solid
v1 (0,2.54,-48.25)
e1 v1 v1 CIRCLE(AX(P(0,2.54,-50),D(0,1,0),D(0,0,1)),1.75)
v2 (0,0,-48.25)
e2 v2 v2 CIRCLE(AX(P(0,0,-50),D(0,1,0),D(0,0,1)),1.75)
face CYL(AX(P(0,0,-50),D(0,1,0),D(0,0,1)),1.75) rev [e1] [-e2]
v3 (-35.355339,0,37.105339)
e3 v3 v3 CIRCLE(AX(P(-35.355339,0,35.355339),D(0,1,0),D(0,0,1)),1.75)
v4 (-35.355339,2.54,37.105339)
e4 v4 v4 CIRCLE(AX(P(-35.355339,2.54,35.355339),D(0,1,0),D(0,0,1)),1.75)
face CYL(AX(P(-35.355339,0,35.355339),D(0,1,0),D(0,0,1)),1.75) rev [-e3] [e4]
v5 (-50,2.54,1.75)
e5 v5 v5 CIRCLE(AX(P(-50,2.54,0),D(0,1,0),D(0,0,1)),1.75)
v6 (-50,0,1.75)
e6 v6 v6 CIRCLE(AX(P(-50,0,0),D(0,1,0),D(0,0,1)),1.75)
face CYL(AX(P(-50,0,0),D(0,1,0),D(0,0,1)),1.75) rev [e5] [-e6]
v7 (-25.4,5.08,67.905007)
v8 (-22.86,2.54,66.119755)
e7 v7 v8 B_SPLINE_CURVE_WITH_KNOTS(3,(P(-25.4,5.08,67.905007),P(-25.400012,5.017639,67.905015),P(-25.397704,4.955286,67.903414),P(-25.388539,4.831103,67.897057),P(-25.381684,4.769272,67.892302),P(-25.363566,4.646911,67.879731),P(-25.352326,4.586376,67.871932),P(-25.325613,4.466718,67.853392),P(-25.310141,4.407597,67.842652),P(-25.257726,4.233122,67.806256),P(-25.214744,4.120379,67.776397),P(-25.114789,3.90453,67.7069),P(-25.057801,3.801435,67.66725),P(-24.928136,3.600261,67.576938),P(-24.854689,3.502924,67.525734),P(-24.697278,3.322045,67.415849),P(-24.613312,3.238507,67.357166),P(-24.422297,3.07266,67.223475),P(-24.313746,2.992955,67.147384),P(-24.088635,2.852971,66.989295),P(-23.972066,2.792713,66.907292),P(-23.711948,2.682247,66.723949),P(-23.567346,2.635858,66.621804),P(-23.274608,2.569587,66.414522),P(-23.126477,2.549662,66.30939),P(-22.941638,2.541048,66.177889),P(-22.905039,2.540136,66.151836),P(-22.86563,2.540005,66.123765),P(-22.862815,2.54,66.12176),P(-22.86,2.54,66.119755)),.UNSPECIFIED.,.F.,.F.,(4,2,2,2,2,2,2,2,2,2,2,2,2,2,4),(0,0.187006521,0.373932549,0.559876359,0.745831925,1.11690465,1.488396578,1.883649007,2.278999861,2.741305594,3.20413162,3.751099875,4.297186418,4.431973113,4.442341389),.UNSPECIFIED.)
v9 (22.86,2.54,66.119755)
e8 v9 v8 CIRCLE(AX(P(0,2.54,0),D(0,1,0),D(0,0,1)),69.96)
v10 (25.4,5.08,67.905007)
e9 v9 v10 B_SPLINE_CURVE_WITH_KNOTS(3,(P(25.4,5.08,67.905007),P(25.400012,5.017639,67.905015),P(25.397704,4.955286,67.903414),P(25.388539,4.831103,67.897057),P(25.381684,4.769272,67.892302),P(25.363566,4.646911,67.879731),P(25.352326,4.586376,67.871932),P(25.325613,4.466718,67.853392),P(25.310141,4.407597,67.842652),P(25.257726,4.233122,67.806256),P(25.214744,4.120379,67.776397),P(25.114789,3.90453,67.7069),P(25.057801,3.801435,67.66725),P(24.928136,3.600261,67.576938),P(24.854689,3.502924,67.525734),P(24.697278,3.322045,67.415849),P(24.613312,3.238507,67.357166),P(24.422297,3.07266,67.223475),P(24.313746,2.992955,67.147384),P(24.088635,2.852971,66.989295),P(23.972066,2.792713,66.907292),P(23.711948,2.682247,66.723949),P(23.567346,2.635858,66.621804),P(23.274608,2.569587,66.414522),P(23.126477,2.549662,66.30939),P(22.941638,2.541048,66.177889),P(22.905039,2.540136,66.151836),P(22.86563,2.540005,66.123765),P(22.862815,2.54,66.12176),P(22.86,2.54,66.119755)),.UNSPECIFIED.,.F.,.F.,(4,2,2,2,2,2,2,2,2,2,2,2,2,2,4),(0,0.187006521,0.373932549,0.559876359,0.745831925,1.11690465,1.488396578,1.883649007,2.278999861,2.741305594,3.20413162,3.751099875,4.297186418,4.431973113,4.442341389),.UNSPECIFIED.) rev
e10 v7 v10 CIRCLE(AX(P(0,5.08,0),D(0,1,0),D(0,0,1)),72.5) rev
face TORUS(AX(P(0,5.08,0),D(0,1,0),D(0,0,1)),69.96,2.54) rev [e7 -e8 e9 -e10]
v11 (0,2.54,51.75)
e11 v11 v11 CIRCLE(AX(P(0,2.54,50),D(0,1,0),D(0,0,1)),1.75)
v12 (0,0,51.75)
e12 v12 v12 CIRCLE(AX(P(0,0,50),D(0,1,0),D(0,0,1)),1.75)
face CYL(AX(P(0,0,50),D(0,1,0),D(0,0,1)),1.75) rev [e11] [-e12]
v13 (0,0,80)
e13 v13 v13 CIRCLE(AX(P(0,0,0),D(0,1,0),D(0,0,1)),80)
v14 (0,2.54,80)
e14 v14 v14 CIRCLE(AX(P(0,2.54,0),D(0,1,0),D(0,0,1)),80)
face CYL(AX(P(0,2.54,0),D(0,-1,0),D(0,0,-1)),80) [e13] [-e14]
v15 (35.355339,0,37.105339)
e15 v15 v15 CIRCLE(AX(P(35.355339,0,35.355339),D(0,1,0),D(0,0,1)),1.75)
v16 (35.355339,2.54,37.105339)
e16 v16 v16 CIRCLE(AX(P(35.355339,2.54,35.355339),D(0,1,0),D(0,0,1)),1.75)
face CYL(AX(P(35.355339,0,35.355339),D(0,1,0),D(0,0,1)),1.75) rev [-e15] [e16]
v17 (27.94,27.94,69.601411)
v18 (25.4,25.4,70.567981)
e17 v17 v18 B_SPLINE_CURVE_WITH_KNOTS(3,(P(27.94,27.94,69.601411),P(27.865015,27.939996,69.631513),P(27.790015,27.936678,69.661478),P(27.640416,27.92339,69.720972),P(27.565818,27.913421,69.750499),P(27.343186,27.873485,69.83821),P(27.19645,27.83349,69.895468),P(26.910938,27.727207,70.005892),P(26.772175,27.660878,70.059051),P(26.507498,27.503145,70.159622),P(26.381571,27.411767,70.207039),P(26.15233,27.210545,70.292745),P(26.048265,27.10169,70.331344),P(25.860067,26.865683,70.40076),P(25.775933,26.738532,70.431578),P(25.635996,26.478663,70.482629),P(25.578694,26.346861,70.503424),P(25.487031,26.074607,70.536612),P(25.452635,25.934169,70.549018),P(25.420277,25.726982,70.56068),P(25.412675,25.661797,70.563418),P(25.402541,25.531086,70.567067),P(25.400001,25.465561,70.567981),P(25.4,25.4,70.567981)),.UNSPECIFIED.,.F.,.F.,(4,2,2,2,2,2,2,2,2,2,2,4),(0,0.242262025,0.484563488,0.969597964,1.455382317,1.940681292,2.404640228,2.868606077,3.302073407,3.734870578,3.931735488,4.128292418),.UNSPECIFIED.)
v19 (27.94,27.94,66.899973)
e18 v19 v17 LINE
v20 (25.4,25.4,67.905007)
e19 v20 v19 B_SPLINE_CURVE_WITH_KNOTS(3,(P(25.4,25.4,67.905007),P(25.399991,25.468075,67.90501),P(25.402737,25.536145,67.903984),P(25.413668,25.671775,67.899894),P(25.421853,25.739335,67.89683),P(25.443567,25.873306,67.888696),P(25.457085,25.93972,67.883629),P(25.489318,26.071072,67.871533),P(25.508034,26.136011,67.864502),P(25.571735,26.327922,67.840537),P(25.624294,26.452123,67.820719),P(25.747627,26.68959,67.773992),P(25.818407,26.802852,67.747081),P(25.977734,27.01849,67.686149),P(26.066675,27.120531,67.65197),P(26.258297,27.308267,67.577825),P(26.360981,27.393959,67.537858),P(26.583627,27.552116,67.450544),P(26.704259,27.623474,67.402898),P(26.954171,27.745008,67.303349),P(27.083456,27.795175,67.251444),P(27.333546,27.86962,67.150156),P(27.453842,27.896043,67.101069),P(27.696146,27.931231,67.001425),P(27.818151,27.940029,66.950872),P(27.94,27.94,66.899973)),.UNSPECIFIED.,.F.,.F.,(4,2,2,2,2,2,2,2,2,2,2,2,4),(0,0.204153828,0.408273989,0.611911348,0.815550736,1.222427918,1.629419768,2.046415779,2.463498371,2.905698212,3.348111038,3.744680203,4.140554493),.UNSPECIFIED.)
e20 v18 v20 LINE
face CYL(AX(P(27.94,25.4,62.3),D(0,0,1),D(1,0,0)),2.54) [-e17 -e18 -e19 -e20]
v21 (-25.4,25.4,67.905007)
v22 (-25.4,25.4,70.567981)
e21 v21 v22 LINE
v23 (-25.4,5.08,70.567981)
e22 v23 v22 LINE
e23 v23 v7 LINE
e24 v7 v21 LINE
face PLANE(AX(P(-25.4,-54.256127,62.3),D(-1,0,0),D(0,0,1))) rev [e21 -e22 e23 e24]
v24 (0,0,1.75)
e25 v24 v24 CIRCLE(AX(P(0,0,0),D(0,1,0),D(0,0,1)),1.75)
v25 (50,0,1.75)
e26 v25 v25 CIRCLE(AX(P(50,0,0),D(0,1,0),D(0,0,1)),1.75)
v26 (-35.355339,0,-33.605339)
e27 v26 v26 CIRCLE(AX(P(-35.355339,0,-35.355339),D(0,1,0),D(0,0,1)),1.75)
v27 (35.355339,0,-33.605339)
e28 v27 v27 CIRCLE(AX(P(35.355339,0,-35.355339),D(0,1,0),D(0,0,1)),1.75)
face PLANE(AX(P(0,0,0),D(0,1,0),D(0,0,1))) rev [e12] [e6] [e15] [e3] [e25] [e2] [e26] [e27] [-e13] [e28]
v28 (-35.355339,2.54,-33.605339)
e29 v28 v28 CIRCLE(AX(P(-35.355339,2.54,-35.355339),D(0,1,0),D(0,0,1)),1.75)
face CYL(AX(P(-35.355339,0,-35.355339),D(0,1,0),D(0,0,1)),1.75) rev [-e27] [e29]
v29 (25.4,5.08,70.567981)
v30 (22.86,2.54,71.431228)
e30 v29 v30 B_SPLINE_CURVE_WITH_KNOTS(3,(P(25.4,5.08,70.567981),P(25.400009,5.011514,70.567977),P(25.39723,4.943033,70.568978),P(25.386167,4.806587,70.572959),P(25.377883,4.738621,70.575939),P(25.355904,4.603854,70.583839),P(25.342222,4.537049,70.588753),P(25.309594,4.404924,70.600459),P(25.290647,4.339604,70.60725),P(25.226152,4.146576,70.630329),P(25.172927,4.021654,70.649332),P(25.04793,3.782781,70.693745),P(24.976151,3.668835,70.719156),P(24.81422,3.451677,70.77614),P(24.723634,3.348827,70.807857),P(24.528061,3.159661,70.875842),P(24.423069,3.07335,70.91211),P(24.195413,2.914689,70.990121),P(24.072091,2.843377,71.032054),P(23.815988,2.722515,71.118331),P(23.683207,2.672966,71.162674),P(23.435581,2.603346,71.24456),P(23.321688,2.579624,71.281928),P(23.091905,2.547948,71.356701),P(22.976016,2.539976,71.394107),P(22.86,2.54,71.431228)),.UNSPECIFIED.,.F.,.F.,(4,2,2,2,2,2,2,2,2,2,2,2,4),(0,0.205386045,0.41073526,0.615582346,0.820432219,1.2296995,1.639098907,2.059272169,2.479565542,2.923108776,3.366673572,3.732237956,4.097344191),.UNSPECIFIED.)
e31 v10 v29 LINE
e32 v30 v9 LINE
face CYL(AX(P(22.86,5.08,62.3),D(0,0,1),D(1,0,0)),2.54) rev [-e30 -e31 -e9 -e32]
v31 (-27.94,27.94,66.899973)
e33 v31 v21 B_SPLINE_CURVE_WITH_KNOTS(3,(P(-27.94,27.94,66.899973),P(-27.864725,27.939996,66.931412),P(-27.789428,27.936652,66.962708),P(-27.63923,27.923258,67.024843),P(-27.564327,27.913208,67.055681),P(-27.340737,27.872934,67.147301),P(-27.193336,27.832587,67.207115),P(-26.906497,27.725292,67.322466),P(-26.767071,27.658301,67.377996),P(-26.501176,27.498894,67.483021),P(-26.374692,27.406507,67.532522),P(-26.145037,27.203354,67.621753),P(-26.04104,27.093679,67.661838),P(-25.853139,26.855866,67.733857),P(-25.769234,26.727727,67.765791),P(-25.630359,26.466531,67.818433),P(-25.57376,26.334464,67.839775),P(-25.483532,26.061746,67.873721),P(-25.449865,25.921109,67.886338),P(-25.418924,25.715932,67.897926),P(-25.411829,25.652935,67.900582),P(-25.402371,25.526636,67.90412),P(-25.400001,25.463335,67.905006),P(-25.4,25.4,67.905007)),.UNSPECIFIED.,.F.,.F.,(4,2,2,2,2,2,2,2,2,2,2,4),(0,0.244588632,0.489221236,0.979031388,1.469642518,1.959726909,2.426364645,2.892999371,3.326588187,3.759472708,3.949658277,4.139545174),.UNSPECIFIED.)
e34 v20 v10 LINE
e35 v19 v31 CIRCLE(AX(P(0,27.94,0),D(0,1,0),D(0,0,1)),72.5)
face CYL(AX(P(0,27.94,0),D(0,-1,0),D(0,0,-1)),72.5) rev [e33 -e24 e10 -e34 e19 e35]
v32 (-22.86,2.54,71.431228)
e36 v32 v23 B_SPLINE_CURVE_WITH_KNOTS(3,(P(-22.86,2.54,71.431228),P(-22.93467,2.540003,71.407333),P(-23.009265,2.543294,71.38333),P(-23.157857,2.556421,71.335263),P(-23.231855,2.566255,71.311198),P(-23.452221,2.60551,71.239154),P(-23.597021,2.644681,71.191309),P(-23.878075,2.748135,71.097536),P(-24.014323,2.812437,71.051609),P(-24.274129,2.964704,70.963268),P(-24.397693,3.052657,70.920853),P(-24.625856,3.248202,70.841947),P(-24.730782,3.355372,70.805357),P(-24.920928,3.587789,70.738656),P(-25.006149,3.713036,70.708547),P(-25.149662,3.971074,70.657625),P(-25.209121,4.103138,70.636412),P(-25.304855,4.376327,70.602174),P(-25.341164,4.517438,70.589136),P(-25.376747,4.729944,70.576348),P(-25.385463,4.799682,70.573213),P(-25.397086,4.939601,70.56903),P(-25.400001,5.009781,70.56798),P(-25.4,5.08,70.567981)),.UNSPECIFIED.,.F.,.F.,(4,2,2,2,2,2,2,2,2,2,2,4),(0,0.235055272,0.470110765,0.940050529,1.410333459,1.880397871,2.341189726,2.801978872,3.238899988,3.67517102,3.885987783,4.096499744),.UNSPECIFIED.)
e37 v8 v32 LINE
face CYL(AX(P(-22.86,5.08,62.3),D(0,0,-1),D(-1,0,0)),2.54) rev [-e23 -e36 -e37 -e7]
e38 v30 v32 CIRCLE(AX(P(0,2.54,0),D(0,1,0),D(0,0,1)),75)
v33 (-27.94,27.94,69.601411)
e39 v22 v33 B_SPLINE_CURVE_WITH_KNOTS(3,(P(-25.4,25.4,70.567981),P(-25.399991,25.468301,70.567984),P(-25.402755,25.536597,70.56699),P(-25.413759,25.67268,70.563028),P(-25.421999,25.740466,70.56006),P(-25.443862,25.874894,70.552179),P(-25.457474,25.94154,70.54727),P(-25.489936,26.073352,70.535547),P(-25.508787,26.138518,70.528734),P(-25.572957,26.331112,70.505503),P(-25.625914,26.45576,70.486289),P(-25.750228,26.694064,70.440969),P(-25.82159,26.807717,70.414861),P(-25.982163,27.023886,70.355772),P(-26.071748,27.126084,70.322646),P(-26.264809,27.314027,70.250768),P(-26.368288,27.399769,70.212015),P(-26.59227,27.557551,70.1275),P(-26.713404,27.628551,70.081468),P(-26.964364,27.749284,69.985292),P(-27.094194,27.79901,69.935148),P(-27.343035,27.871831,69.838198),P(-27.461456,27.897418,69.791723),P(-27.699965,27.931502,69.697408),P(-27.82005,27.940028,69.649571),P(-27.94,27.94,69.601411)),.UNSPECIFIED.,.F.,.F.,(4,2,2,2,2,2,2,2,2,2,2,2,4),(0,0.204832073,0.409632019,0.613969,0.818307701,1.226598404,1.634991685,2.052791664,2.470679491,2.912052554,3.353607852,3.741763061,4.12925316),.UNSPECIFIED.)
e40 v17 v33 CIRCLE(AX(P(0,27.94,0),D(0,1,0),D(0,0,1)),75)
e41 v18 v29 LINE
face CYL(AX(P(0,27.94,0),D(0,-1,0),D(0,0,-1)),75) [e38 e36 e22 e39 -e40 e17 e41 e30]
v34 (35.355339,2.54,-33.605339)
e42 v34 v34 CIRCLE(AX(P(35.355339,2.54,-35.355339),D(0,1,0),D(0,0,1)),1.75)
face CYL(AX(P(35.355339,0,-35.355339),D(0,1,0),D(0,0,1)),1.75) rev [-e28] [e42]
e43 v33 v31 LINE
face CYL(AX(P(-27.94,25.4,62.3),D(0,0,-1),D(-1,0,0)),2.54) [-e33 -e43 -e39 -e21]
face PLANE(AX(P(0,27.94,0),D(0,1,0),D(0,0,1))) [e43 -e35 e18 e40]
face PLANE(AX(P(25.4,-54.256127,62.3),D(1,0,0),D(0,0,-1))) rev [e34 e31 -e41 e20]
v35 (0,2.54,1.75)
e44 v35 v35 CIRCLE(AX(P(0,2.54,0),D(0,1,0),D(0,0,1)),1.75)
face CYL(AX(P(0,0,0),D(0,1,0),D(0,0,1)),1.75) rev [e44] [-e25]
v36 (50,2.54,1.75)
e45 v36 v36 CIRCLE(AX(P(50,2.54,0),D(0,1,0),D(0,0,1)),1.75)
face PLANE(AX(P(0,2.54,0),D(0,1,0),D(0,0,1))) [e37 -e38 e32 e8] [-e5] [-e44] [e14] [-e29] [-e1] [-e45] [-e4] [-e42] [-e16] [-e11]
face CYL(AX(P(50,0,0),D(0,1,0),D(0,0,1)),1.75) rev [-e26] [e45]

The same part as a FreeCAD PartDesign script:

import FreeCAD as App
import Part
import Sketcher
from FreeCAD import Vector


def edges_at(feature, points):
    """Names of the edges that pass closest to the given points."""
    edges = feature.Shape.Edges
    near = lambda p: min(range(len(edges)), key=lambda i: edges[i].distToShape(Part.Vertex(*p))[0])
    return sorted({f"Edge{near(p) + 1}" for p in points})

doc = App.newDocument("Part")
body = doc.addObject("PartDesign::Body", "Body")

sketch1 = body.newObject("Sketcher::SketchObject", "Sketch")
sketch1.AttachmentSupport = (doc.getObject("XZ_Plane"), [""])
sketch1.MapMode = "FlatFace"
sketch1.addGeometry(Part.Circle(Vector(0, 0, 0), Vector(0, 0, 1), 80), False)
sketch1.addConstraint(Sketcher.Constraint("Coincident", 0, 3, -1, 1))
sketch1.addConstraint(Sketcher.Constraint("Diameter", 0, 160.0))
pad1 = body.newObject("PartDesign::Pad", "Pad")
pad1.Profile = sketch1
pad1.Length = 2.54
pad1.Reversed = True

sketch2 = body.newObject("Sketcher::SketchObject", "Sketch001")
sketch2.AttachmentSupport = (doc.getObject("XZ_Plane"), [""])
sketch2.MapMode = "FlatFace"
sketch2.AttachmentOffset = App.Placement(Vector(0, 0, -2.54), App.Rotation())
sketch2.addGeometry(Part.Circle(Vector(0, 0, 0), Vector(0, 0, 1), 75), False)
sketch2.addGeometry(Part.Circle(Vector(0, 0, 0), Vector(0, 0, 1), 72), False)
sketch2.addConstraint(Sketcher.Constraint("Coincident", 0, 3, -1, 1))
sketch2.addConstraint(Sketcher.Constraint("Coincident", 1, 3, -1, 1))
sketch2.addConstraint(Sketcher.Constraint("Diameter", 0, 150.0))
sketch2.addConstraint(Sketcher.Constraint("Diameter", 1, 145.0))
pad2 = body.newObject("PartDesign::Pad", "Pad001")
pad2.Profile = sketch2
pad2.Length = 25.4
pad2.Reversed = True

sketch3 = body.newObject("Sketcher::SketchObject", "Sketch002")
sketch3.AttachmentSupport = (doc.getObject("XZ_Plane"), [""])
sketch3.MapMode = "FlatFace"
sketch3.AttachmentOffset = App.Placement(Vector(0, 0, -2.54), App.Rotation())
sketch3.addGeometry(Part.Circle(Vector(0, -50, 0), Vector(0, 0, 1), 1.8), False)
sketch3.addGeometry(Part.Circle(Vector(50, 0, 0), Vector(0, 0, 1), 1.8), False)
sketch3.addGeometry(Part.Circle(Vector(0, 50, 0), Vector(0, 0, 1), 1.8), False)
sketch3.addGeometry(Part.Circle(Vector(-50, 0, 0), Vector(0, 0, 1), 1.8), False)
sketch3.addGeometry(Part.Circle(Vector(35.4, -35.4, 0), Vector(0, 0, 1), 1.8), False)
sketch3.addGeometry(Part.Circle(Vector(35.4, 35.4, 0), Vector(0, 0, 1), 1.8), False)
sketch3.addGeometry(Part.Circle(Vector(-35.4, 35.4, 0), Vector(0, 0, 1), 1.8), False)
sketch3.addGeometry(Part.Circle(Vector(-35.4, -35.4, 0), Vector(0, 0, 1), 1.8), False)
sketch3.addGeometry(Part.Circle(Vector(0, 0, 0), Vector(0, 0, 1), 1.8), False)
sketch3.addConstraint(Sketcher.Constraint("Coincident", 8, 3, -1, 1))
sketch3.addConstraint(Sketcher.Constraint("Equal", 0, 1))
sketch3.addConstraint(Sketcher.Constraint("Equal", 1, 2))
sketch3.addConstraint(Sketcher.Constraint("Equal", 2, 3))
sketch3.addConstraint(Sketcher.Constraint("Equal", 3, 4))
sketch3.addConstraint(Sketcher.Constraint("Equal", 4, 5))
sketch3.addConstraint(Sketcher.Constraint("Equal", 5, 6))
sketch3.addConstraint(Sketcher.Constraint("Equal", 6, 7))
sketch3.addConstraint(Sketcher.Constraint("Equal", 7, 8))
sketch3.addConstraint(Sketcher.Constraint("Symmetric", 0, 3, 2, 3, -1, 1))
sketch3.addConstraint(Sketcher.Constraint("Symmetric", 1, 3, 3, 3, -1, 1))
sketch3.addConstraint(Sketcher.Constraint("Symmetric", 4, 3, 6, 3, -1, 1))
sketch3.addConstraint(Sketcher.Constraint("Symmetric", 5, 3, 7, 3, -1, 1))
sketch3.addConstraint(Sketcher.Constraint("Symmetric", 5, 3, 6, 3, -2))
sketch3.addConstraint(Sketcher.Constraint("PointOnObject", 0, 3, -2))
sketch3.addConstraint(Sketcher.Constraint("PointOnObject", 1, 3, -1))
sketch3.addConstraint(Sketcher.Constraint("Diameter", 0, 3.5))
sketch3.addConstraint(Sketcher.Constraint("DistanceY", 0, 3, -1, 1, 50.0))
sketch3.addConstraint(Sketcher.Constraint("DistanceX", -1, 1, 1, 3, 50.0))
sketch3.addConstraint(Sketcher.Constraint("DistanceX", -1, 1, 4, 3, 35.355339))
sketch3.addConstraint(Sketcher.Constraint("DistanceY", 4, 3, -1, 1, 35.355339))
pocket1 = body.newObject("PartDesign::Pocket", "Pocket")
pocket1.Profile = sketch3
pocket1.Type = "ThroughAll"
pocket1.Reversed = True

sketch4 = body.newObject("Sketcher::SketchObject", "Sketch003")
sketch4.AttachmentSupport = (doc.getObject("XZ_Plane"), [""])
sketch4.MapMode = "FlatFace"
sketch4.AttachmentOffset = App.Placement(Vector(0, 0, -27.94), App.Rotation())
sketch4.addGeometry(Part.LineSegment(Vector(-25, 62, 0), Vector(-25, 88, 0)), False)
sketch4.addGeometry(Part.LineSegment(Vector(-25, 88, 0), Vector(25, 88, 0)), False)
sketch4.addGeometry(Part.LineSegment(Vector(25, 88, 0), Vector(25, 62, 0)), False)
sketch4.addGeometry(Part.LineSegment(Vector(25, 62, 0), Vector(-25, 62, 0)), False)
sketch4.addConstraint(Sketcher.Constraint("Coincident", 0, 2, 1, 1))
sketch4.addConstraint(Sketcher.Constraint("Coincident", 1, 2, 2, 1))
sketch4.addConstraint(Sketcher.Constraint("Coincident", 2, 2, 3, 1))
sketch4.addConstraint(Sketcher.Constraint("Coincident", 3, 2, 0, 1))
sketch4.addConstraint(Sketcher.Constraint("Vertical", 0))
sketch4.addConstraint(Sketcher.Constraint("Horizontal", 1))
sketch4.addConstraint(Sketcher.Constraint("Vertical", 2))
sketch4.addConstraint(Sketcher.Constraint("Horizontal", 3))
sketch4.addConstraint(Sketcher.Constraint("DistanceX", 1, 1, 1, 2, 50.8))
sketch4.addConstraint(Sketcher.Constraint("DistanceY", 0, 1, 0, 2, 25.4))
sketch4.addConstraint(Sketcher.Constraint("DistanceX", 0, 2, -1, 1, 25.4))
sketch4.addConstraint(Sketcher.Constraint("DistanceY", -1, 1, 0, 2, 87.7))
pocket2 = body.newObject("PartDesign::Pocket", "Pocket001")
pocket2.Profile = sketch4
pocket2.Length = 25.4
pocket2.Reversed = True
doc.recompute()

fillet = body.newObject("PartDesign::Fillet", "Fillet")
fillet.Base = (pocket2, edges_at(pocket2, [
    (0, 2.54, -72.5),
    (-25.4, 27.94, 69.236),
    (25.4, 27.94, 69.236),
    (-25.4, 2.54, 69.236),
    (25.4, 2.54, 69.236),
]))
fillet.Radius = 2.54

doc.recompute()
